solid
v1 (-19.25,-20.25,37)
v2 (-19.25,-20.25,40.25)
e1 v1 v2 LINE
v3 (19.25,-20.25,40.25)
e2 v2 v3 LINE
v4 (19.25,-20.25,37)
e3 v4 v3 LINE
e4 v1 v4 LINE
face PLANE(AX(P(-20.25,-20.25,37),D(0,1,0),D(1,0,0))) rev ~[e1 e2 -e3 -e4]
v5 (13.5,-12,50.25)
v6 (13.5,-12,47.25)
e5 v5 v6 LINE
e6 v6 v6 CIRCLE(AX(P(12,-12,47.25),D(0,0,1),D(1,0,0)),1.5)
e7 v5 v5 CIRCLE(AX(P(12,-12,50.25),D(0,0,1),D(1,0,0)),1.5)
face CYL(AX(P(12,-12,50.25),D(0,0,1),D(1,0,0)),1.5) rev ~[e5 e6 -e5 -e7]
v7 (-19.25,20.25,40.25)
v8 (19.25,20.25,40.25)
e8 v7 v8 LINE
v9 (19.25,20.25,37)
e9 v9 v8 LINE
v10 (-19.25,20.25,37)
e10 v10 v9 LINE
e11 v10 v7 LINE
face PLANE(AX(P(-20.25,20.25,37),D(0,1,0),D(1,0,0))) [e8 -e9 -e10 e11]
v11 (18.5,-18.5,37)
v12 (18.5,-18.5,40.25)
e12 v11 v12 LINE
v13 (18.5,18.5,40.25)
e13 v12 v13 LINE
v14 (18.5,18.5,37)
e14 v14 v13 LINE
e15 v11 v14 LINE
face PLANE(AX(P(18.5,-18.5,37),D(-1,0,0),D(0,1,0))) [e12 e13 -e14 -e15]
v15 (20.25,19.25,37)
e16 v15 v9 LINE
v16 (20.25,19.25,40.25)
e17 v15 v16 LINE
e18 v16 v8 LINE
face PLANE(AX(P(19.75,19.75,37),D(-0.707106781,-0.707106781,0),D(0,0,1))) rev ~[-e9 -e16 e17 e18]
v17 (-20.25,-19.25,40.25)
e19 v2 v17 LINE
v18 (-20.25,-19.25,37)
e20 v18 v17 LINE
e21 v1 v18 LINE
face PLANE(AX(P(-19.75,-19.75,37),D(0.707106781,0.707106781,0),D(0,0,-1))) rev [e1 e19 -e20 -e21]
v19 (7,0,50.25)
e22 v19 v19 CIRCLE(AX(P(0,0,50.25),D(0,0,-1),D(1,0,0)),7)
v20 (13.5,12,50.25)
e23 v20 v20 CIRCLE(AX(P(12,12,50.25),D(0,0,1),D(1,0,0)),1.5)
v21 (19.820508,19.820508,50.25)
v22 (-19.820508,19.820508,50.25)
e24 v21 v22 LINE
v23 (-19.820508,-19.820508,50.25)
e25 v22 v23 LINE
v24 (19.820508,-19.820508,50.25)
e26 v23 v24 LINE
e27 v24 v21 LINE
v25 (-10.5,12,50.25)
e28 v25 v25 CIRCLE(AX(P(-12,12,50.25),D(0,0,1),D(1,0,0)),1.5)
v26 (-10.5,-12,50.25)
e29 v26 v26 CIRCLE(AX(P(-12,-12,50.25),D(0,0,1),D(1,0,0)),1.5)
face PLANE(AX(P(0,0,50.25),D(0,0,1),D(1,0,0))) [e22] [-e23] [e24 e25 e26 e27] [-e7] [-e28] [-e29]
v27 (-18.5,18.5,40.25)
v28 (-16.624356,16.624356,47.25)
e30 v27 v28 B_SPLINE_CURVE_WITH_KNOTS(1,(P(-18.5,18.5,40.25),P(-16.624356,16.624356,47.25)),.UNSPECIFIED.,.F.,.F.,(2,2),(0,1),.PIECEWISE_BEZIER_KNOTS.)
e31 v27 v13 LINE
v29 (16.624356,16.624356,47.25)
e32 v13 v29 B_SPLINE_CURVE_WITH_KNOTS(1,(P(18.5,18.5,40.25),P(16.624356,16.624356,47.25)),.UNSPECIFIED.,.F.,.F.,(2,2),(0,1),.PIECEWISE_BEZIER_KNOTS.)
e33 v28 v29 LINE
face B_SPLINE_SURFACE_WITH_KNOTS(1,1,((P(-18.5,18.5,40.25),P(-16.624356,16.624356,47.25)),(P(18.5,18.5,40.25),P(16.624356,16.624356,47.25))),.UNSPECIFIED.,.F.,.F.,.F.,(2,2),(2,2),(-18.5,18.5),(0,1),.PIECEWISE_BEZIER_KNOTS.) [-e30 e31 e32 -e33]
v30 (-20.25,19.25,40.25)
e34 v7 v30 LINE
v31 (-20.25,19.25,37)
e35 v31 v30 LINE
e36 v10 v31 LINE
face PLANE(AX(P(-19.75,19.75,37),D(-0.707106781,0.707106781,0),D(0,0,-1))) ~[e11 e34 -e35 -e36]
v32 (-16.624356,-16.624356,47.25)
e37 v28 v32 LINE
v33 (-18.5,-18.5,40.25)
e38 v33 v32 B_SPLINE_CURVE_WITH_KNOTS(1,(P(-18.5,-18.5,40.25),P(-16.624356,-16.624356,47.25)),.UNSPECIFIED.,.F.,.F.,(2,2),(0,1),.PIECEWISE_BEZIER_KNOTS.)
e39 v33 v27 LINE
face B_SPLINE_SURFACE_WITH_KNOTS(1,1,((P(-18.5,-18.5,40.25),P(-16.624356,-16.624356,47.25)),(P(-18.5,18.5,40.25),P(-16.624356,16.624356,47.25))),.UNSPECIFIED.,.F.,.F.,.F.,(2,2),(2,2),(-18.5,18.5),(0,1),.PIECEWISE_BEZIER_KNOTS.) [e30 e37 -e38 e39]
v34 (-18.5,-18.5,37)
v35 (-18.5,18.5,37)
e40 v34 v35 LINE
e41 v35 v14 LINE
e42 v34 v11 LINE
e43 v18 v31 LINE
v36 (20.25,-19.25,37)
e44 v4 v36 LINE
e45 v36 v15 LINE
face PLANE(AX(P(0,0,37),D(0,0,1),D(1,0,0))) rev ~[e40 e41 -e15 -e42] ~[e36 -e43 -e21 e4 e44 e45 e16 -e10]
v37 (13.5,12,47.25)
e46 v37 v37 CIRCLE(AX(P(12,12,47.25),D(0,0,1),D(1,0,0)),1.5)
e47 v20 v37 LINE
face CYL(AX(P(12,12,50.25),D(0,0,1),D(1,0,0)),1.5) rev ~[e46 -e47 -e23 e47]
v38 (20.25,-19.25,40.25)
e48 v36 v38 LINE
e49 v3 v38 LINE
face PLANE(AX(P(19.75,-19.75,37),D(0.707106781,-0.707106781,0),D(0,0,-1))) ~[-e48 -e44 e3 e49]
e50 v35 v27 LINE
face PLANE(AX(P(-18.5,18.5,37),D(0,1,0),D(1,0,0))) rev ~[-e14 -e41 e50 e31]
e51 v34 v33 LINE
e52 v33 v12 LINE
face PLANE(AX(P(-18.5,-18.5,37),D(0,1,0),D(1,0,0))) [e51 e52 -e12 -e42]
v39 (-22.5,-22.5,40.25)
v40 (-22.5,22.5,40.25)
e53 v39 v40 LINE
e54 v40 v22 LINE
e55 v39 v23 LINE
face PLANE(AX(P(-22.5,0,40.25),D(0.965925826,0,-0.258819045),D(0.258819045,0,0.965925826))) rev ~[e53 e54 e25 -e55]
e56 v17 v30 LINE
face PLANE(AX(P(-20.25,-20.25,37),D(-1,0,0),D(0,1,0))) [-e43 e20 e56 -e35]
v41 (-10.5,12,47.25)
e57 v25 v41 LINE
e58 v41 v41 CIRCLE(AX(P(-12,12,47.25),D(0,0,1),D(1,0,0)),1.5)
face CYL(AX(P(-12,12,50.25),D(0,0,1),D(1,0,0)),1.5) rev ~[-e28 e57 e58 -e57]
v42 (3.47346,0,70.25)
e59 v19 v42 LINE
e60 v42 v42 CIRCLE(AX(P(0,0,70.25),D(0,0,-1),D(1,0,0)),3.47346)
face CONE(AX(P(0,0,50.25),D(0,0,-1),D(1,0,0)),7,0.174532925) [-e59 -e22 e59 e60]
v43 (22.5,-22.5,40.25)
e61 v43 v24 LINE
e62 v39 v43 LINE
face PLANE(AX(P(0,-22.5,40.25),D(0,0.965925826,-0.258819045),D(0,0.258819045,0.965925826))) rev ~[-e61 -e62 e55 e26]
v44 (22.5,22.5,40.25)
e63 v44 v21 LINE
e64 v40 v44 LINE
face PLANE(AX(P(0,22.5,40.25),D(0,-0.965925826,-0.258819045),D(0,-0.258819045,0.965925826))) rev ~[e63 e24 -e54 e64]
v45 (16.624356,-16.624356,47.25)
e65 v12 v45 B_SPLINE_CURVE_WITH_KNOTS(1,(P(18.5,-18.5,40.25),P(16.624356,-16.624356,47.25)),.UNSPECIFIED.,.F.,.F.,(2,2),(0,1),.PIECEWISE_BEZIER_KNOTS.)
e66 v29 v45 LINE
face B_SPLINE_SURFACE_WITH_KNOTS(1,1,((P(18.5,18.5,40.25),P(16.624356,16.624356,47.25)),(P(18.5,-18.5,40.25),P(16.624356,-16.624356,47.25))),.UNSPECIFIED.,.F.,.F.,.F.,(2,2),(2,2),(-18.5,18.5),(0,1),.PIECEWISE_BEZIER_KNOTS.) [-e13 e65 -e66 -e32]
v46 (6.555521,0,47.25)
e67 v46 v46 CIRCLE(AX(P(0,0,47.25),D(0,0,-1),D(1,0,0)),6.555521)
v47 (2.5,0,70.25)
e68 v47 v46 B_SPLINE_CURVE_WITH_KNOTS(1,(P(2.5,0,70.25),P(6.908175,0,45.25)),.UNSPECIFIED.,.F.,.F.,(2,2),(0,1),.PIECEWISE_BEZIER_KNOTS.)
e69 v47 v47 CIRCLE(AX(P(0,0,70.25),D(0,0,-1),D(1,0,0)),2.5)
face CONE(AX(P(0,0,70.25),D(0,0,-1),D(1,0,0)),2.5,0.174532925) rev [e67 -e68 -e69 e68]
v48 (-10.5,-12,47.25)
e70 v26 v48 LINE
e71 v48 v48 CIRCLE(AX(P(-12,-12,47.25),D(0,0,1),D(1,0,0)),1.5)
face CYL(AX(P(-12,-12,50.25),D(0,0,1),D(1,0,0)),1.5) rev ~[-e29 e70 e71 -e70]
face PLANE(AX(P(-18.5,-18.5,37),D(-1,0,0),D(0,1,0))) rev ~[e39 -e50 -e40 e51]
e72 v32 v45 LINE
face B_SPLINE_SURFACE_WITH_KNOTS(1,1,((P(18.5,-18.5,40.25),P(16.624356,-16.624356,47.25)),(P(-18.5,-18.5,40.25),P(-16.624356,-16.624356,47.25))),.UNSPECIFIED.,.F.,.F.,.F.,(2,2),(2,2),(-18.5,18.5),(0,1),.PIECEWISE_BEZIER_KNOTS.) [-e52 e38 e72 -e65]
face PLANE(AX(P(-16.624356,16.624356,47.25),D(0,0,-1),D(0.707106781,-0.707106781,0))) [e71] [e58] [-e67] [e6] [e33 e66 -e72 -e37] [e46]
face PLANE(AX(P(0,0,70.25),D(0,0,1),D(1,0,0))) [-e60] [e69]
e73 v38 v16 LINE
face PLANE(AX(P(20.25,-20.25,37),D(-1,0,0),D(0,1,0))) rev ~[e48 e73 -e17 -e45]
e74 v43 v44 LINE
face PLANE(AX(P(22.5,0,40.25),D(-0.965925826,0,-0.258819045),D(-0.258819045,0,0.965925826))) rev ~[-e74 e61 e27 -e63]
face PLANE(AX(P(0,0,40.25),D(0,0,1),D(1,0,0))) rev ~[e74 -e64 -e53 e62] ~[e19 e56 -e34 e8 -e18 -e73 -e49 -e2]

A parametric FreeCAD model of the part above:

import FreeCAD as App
import Part
import Sketcher
from FreeCAD import Vector
Q = App.Units.Quantity


def edges_at(feature, points):
    """Names of the edges that pass closest to the given points."""
    edges = feature.Shape.Edges
    near = lambda p: min(range(len(edges)), key=lambda i: edges[i].distToShape(Part.Vertex(*p))[0])
    return sorted({f"Edge{near(p) + 1}" for p in points})


def add_polygon(sketch, points):
    """Adds a closed chain of lines whose ends are joined by coincident constraints."""
    first, n = sketch.GeometryCount, len(points)
    for a, b in zip(points, points[1:] + points[:1]):
        sketch.addGeometry(Part.LineSegment(App.Vector(*a, 0), App.Vector(*b, 0)), False)
    for i in range(n):
        sketch.addConstraint(Sketcher.Constraint("Coincident", first + i, 2, first + (i + 1) % n, 1))

doc = App.newDocument("Part")
params = doc.addObject("Spreadsheet::Sheet", "Params")
for row, (alias, value) in enumerate([
    ("sketch1_width", "37 mm"),
    ("sketch1_width2", "40.5 mm"),
    ("pad1_length", "3.25 mm"),
    ("sketch2_width", "45 mm"),
    ("pad2_length", "10 mm"),
    ("pad2_taper", "-15 deg"),
    ("sketch3_width", "37 mm"),
    ("pocket1_length", "7 mm"),
    ("pocket1_taper", "-15 deg"),
    ("sketch4_diameter", "14 mm"),
    ("pad3_length", "20 mm"),
    ("pad3_taper", "-10 deg"),
    ("sketch5_diameter", "5 mm"),
    ("pocket2_length", "25 mm"),
    ("pocket2_taper", "10 deg"),
    ("sketch6_diameter", "3 mm"),
    ("chamfer_size", "1 mm"),
], start=1):
    params.set(f"A{row}", alias)
    params.set(f"B{row}", "=" + value)
    params.setAlias(f"B{row}", alias)

body = doc.addObject("PartDesign::Body", "Body")

sketch1 = doc.addObject("Sketcher::SketchObject", "Sketch")
body.addObject(sketch1)
sketch1.AttachmentSupport = (doc.XY_Plane, [""])
sketch1.MapMode = "FlatFace"
sketch1.AttachmentOffset = App.Placement(Vector(0, 0, 37), App.Rotation())
add_polygon(sketch1, [(-20, 20), (-20, -20), (20, -20), (20, 20)])
add_polygon(sketch1, [(18, -18), (-18, -18), (-18, 18), (18, 18)])
sketch1.addConstraint([
    Sketcher.Constraint("Vertical", 0),
    Sketcher.Constraint("Horizontal", 1),
    Sketcher.Constraint("Vertical", 2),
    Sketcher.Constraint("Horizontal", 3),
    Sketcher.Constraint("Horizontal", 4),
    Sketcher.Constraint("Vertical", 5),
    Sketcher.Constraint("Horizontal", 6),
    Sketcher.Constraint("Vertical", 7),
    Sketcher.Constraint("Symmetric", 0, 2, 2, 2, -1, 1),
    Sketcher.Constraint("Symmetric", 4, 2, 6, 2, -1, 1),
    Sketcher.Constraint("Equal", 3, 0),
    Sketcher.Constraint("Equal", 6, 5),
    Sketcher.Constraint("DistanceX", 4, 2, 4, 1, Q("37 mm")),
    Sketcher.Constraint("DistanceX", 1, 1, 1, 2, Q("40.5 mm")),
])
sketch1.setExpression("Constraints[20]", "Params.sketch1_width")
sketch1.setExpression("Constraints[21]", "Params.sketch1_width2")
pad1 = doc.addObject("PartDesign::Pad", "Pad")
body.addObject(pad1)
pad1.Profile = sketch1
pad1.setExpression("Length", "Params.pad1_length")

sketch2 = doc.addObject("Sketcher::SketchObject", "Sketch001")
body.addObject(sketch2)
sketch2.AttachmentSupport = (doc.XY_Plane, [""])
sketch2.MapMode = "FlatFace"
sketch2.AttachmentOffset = App.Placement(Vector(0, 0, 40.25), App.Rotation())
add_polygon(sketch2, [(-22, 22), (-22, -22), (22, -22), (22, 22)])
sketch2.addConstraint([
    Sketcher.Constraint("Vertical", 0),
    Sketcher.Constraint("Horizontal", 1),
    Sketcher.Constraint("Vertical", 2),
    Sketcher.Constraint("Horizontal", 3),
    Sketcher.Constraint("Symmetric", 0, 2, 2, 2, -1, 1),
    Sketcher.Constraint("Equal", 3, 0),
    Sketcher.Constraint("DistanceX", 1, 1, 1, 2, Q("45 mm")),
])
sketch2.setExpression("Constraints[10]", "Params.sketch2_width")
pad2 = doc.addObject("PartDesign::Pad", "Pad001")
body.addObject(pad2)
pad2.Profile = sketch2
pad2.setExpression("Length", "Params.pad2_length")
pad2.setExpression("TaperAngle", "Params.pad2_taper")

sketch3 = doc.addObject("Sketcher::SketchObject", "Sketch002")
body.addObject(sketch3)
sketch3.AttachmentSupport = (doc.XY_Plane, [""])
sketch3.MapMode = "FlatFace"
sketch3.AttachmentOffset = App.Placement(Vector(0, 0, 40.25), App.Rotation())
add_polygon(sketch3, [(-18, -18), (-18, 18), (18, 18), (18, -18)])
sketch3.addConstraint([
    Sketcher.Constraint("Vertical", 0),
    Sketcher.Constraint("Horizontal", 1),
    Sketcher.Constraint("Vertical", 2),
    Sketcher.Constraint("Horizontal", 3),
    Sketcher.Constraint("Symmetric", 0, 2, 2, 2, -1, 1),
    Sketcher.Constraint("Equal", 3, 0),
    Sketcher.Constraint("DistanceX", 1, 1, 1, 2, Q("37 mm")),
])
sketch3.setExpression("Constraints[10]", "Params.sketch3_width")
pocket1 = doc.addObject("PartDesign::Pocket", "Pocket")
body.addObject(pocket1)
pocket1.Profile = sketch3
pocket1.setExpression("Length", "Params.pocket1_length")
pocket1.Reversed = True
pocket1.setExpression("TaperAngle", "Params.pocket1_taper")

sketch4 = doc.addObject("Sketcher::SketchObject", "Sketch003")
body.addObject(sketch4)
sketch4.AttachmentSupport = (doc.XY_Plane, [""])
sketch4.MapMode = "FlatFace"
sketch4.AttachmentOffset = App.Placement(Vector(0, 0, 50.25), App.Rotation())
sketch4.addGeometry(Part.Circle(Vector(0, 0, 0), Vector(0, 0, 1), 7), False)
sketch4.addConstraint([
    Sketcher.Constraint("Coincident", 0, 3, -1, 1),
    Sketcher.Constraint("Diameter", 0, Q("14 mm")),
])
sketch4.setExpression("Constraints[1]", "Params.sketch4_diameter")
pad3 = doc.addObject("PartDesign::Pad", "Pad002")
body.addObject(pad3)
pad3.Profile = sketch4
pad3.setExpression("Length", "Params.pad3_length")
pad3.setExpression("TaperAngle", "Params.pad3_taper")

sketch5 = doc.addObject("Sketcher::SketchObject", "Sketch004")
body.addObject(sketch5)
sketch5.AttachmentSupport = (doc.XY_Plane, [""])
sketch5.MapMode = "FlatFace"
sketch5.AttachmentOffset = App.Placement(Vector(0, 0, 70.25), App.Rotation())
sketch5.addGeometry(Part.Circle(Vector(0, 0, 0), Vector(0, 0, 1), 2.5), False)
sketch5.addConstraint([
    Sketcher.Constraint("Coincident", 0, 3, -1, 1),
    Sketcher.Constraint("Diameter", 0, Q("5 mm")),
])
sketch5.setExpression("Constraints[1]", "Params.sketch5_diameter")
pocket2 = doc.addObject("PartDesign::Pocket", "Pocket001")
body.addObject(pocket2)
pocket2.Profile = sketch5
pocket2.setExpression("Length", "Params.pocket2_length")
pocket2.setExpression("TaperAngle", "Params.pocket2_taper")

sketch6 = doc.addObject("Sketcher::SketchObject", "Sketch005")
body.addObject(sketch6)
sketch6.AttachmentSupport = (doc.XY_Plane, [""])
sketch6.MapMode = "FlatFace"
sketch6.AttachmentOffset = App.Placement(Vector(0, 0, 50.25), App.Rotation())
sketch6.addGeometry([
    Part.Circle(Vector(-12, 12, 0), Vector(0, 0, 1), 1.5),
    Part.Circle(Vector(12, 12, 0), Vector(0, 0, 1), 1.5),
    Part.Circle(Vector(-12, -12, 0), Vector(0, 0, 1), 1.5),
    Part.Circle(Vector(12, -12, 0), Vector(0, 0, 1), 1.5),
], False)
sketch6.addConstraint([
    Sketcher.Constraint("Equal", 0, 1),
    Sketcher.Constraint("Equal", 1, 2),
    Sketcher.Constraint("Equal", 2, 3),
    Sketcher.Constraint("Symmetric", 1, 3, 2, 3, -1, 1),
    Sketcher.Constraint("Symmetric", 0, 3, 3, 3, -1, 1),
    Sketcher.Constraint("Symmetric", 0, 3, 1, 3, -2),
    Sketcher.Constraint("Diameter", 0, Q("3 mm")),
    Sketcher.Constraint("DistanceX", 0, 3, -1, 1, Q("12 mm")),
    Sketcher.Constraint("DistanceY", -1, 1, 0, 3, Q("12 mm")),
])
sketch6.setExpression("Constraints[6]", "Params.sketch6_diameter")
pocket3 = doc.addObject("PartDesign::Pocket", "Pocket002")
body.addObject(pocket3)
pocket3.Profile = sketch6
pocket3.Type = "ThroughAll"
doc.recompute()

chamfer = doc.addObject("PartDesign::Chamfer", "Chamfer")
body.addObject(chamfer)
chamfer.Base = (pocket3, edges_at(pocket3, [
    (20.25, -20.25, 38.625),
    (-20.25, -20.25, 38.625),
    (-20.25, 20.25, 38.625),
    (20.25, 20.25, 38.625),
]))
chamfer.setExpression("Size", "Params.chamfer_size")

doc.recompute()
